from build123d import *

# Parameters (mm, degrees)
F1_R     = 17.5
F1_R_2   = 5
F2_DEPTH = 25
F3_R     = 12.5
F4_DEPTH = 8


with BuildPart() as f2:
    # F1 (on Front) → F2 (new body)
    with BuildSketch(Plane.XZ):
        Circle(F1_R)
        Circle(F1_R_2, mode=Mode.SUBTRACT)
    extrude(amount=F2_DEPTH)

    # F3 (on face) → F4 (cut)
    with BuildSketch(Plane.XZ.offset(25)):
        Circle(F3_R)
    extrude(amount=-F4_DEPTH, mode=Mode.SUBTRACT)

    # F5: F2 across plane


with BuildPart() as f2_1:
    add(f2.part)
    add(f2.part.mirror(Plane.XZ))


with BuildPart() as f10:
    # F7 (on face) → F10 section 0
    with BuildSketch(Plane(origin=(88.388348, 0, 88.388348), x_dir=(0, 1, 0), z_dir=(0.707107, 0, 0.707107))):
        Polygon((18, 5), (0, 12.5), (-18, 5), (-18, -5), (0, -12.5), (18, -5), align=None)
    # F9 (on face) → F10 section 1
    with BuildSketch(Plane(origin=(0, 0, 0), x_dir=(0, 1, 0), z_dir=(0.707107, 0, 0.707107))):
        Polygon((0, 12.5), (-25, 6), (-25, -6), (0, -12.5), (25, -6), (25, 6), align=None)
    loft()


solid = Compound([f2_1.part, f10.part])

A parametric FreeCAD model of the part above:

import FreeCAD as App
import Part
import Sketcher

V = App.Vector
Q = App.Units.Quantity

doc = App.newDocument("Part")
body = doc.addObject("PartDesign::Body", "Body")

# Sketch on XZ plane
sketch1 = body.newObject("Sketcher::SketchObject", "Sketch")
sketch1.AttachmentSupport = (doc.getObject("XZ_Plane"), [""])
sketch1.MapMode = "FlatFace"
sketch1.addGeometry([
    Part.Circle(V(0, 0, 0), V(0, 0, 1), 18),
    Part.Circle(V(0, 0, 0), V(0, 0, 1), 5),
], False)
sketch1.addConstraint([
    Sketcher.Constraint("Coincident", 0, 3, -1, 1),
    Sketcher.Constraint("Coincident", 1, 3, -1, 1),
    Sketcher.Constraint("Diameter", 0, Q("35 mm")),
    Sketcher.Constraint("Diameter", 1, Q("10 mm")),
])
pad1 = body.newObject("PartDesign::Pad", "Pad")
pad1.Profile = sketch1
pad1.Length = 25

# Sketch on XZ plane
sketch2 = body.newObject("Sketcher::SketchObject", "Sketch001")
sketch2.AttachmentSupport = (doc.getObject("XZ_Plane"), [""])
sketch2.MapMode = "FlatFace"
sketch2.AttachmentOffset = App.Placement(V(0, 0, 25), App.Rotation())
sketch2.addGeometry(Part.Circle(V(0, 0, 0), V(0, 0, 1), 12), False)
sketch2.addConstraint([
    Sketcher.Constraint("Coincident", 0, 3, -1, 1),
    Sketcher.Constraint("Diameter", 0, Q("25 mm")),
])
pocket1 = body.newObject("PartDesign::Pocket", "Pocket")
pocket1.Profile = sketch2
pocket1.Length = 8
body2 = doc.addObject("PartDesign::Body", "Body001")
doc.recompute()

body2.BaseFeature = body
doc.recompute()

mirroring = doc.addObject("Part::Mirroring", "Mirroring")
mirroring.Source = body
mirroring.Base = V(0, 0, 0)
mirroring.Normal = V(0, -1, 0)
body3 = doc.addObject("PartDesign::Body", "Body002")
body3.BaseFeature = mirroring
boolean = body2.newObject("PartDesign::Boolean", "Boolean")
boolean.Type = "Fuse"
boolean.addObjects([body3])
doc.recompute()
body4 = doc.addObject("PartDesign::Body", "Body003")

# Sketch on an angled plane
sketch3 = body4.newObject("Sketcher::SketchObject", "Sketch002")
sketch3.Placement = App.Placement(V(88.388348, 0, 88.388348), App.Rotation(V(0, 1, 0), V(-0.707106781, 0, 0.707106781), V(0.707106781, 0, 0.707106781), "ZXY"))
sketch3.addGeometry([
    Part.LineSegment(V(18, 5, 0), V(0, 12, 0)),  # 0
    Part.LineSegment(V(0, 12, 0), V(-18, 5, 0)),  # 1
    Part.LineSegment(V(-18, 5, 0), V(-18, -5, 0)),  # 2
    Part.LineSegment(V(-18, -5, 0), V(0, -12, 0)),  # 3
    Part.LineSegment(V(0, -12, 0), V(18, -5, 0)),  # 4
    Part.LineSegment(V(18, -5, 0), V(18, 5, 0)),  # 5
], False)
sketch3.addConstraint([
    Sketcher.Constraint("Coincident", 0, 2, 1, 1),
    Sketcher.Constraint("Coincident", 1, 2, 2, 1),
    Sketcher.Constraint("Coincident", 2, 2, 3, 1),
    Sketcher.Constraint("Coincident", 3, 2, 4, 1),
    Sketcher.Constraint("Coincident", 4, 2, 5, 1),
    Sketcher.Constraint("Coincident", 5, 2, 0, 1),
    Sketcher.Constraint("Vertical", 2),
    Sketcher.Constraint("Vertical", 5),
    Sketcher.Constraint("Symmetric", 0, 2, 3, 2, -1, 1),
    Sketcher.Constraint("Symmetric", 1, 2, 4, 2, -1, 1),
    Sketcher.Constraint("PointOnObject", 0, 2, -2),
    Sketcher.Constraint("Parallel", 0, 3),
    Sketcher.Constraint("Horizontal", 2, 2, 4, 2),
    Sketcher.Constraint("DistanceY", 2, 2, 2, 1, Q("10 mm")),
    Sketcher.Constraint("DistanceX", 1, 2, -1, 1, Q("18 mm")),
    Sketcher.Constraint("DistanceY", 3, 2, 0, 2, Q("25 mm")),
])

# Sketch on an angled plane
sketch4 = body4.newObject("Sketcher::SketchObject", "Sketch003")
sketch4.Placement = App.Placement(V(0, 0, 0), App.Rotation(V(0, 1, 0), V(-0.707106781, 0, 0.707106781), V(0.707106781, 0, 0.707106781), "ZXY"))
sketch4.addGeometry([
    Part.LineSegment(V(0, 12, 0), V(-25, 6, 0)),  # 0
    Part.LineSegment(V(-25, 6, 0), V(-25, -6, 0)),  # 1
    Part.LineSegment(V(-25, -6, 0), V(0, -12, 0)),  # 2
    Part.LineSegment(V(0, -12, 0), V(25, -6, 0)),  # 3
    Part.LineSegment(V(25, -6, 0), V(25, 6, 0)),  # 4
    Part.LineSegment(V(25, 6, 0), V(0, 12, 0)),  # 5
], False)
sketch4.addConstraint([
    Sketcher.Constraint("Coincident", 0, 2, 1, 1),
    Sketcher.Constraint("Coincident", 1, 2, 2, 1),
    Sketcher.Constraint("Coincident", 2, 2, 3, 1),
    Sketcher.Constraint("Coincident", 3, 2, 4, 1),
    Sketcher.Constraint("Coincident", 4, 2, 5, 1),
    Sketcher.Constraint("Coincident", 5, 2, 0, 1),
    Sketcher.Constraint("Vertical", 1),
    Sketcher.Constraint("Vertical", 4),
    Sketcher.Constraint("Symmetric", 0, 2, 3, 2, -1, 1),
    Sketcher.Constraint("Symmetric", 2, 2, 5, 2, -1, 1),
    Sketcher.Constraint("PointOnObject", 2, 2, -2),
    Sketcher.Constraint("Parallel", 2, 5),
    Sketcher.Constraint("Horizontal", 1, 2, 3, 2),
    Sketcher.Constraint("DistanceY", 1, 2, 1, 1, Q("12 mm")),
    Sketcher.Constraint("DistanceX", 0, 2, -1, 1, Q("25 mm")),
    Sketcher.Constraint("DistanceY", 2, 2, 5, 2, Q("25 mm")),
])

additiveloft = body4.newObject("PartDesign::AdditiveLoft", "AdditiveLoft")
additiveloft.Profile = sketch3
additiveloft.Sections = [sketch4]
mirroring.Visibility = False

doc.recompute()
